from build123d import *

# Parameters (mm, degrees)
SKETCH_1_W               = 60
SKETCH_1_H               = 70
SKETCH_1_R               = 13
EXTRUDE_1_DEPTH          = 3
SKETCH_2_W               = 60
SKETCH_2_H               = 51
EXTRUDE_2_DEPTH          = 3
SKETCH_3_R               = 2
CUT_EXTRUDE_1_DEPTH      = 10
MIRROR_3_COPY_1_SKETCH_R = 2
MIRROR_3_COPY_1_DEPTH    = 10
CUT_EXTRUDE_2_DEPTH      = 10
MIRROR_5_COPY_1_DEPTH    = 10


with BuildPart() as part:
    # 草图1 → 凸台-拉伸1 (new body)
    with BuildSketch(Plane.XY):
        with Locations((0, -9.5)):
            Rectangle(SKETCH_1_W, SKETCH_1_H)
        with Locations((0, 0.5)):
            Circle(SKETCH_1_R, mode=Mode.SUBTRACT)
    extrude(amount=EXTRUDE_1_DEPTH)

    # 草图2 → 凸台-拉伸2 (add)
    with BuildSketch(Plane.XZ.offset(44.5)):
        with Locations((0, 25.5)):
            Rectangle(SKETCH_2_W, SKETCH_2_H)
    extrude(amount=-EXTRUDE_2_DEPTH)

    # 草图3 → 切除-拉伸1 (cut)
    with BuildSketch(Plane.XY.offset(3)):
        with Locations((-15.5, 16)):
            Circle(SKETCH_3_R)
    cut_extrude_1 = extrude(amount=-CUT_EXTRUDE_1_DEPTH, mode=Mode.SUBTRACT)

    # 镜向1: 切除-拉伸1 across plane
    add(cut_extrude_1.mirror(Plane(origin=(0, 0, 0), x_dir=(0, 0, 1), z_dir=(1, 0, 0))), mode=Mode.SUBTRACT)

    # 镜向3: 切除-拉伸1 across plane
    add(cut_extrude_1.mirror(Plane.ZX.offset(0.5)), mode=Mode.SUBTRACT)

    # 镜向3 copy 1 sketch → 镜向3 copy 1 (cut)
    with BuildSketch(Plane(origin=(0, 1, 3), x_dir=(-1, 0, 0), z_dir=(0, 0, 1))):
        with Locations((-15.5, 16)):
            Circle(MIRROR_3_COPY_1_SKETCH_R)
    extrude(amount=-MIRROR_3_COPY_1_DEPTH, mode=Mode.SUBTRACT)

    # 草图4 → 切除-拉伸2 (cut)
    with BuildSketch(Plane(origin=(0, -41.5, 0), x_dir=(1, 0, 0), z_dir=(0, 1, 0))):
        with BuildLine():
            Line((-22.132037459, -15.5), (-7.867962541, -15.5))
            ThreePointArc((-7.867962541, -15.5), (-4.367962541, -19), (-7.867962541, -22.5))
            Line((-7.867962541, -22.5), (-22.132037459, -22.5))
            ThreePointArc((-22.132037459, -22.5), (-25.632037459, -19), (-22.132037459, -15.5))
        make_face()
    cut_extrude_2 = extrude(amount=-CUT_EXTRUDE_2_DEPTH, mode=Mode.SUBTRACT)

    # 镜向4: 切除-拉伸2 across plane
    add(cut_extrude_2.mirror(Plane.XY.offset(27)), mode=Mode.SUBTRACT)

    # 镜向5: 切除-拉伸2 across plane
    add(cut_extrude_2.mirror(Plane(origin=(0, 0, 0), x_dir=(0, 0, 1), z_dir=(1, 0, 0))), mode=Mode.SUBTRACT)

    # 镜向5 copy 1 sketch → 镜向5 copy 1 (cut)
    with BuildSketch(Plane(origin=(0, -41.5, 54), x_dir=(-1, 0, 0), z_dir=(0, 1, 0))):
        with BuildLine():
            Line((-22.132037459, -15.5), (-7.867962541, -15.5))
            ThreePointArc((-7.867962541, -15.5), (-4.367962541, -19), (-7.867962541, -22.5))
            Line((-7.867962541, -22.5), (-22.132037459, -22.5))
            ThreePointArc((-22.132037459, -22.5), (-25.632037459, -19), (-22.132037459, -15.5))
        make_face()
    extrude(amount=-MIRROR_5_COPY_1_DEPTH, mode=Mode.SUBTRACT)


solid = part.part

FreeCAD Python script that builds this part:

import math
import FreeCAD as App
import Part
import Sketcher

doc = App.newDocument("Part")
params = doc.addObject("Spreadsheet::Sheet", "Params")
for row, (alias, value) in enumerate([
    ("sketch1_diameter", "26 mm"),
    ("sketch1_width", "60 mm"),
    ("sketch1_height", "70 mm"),
    ("pad1_length", "3 mm"),
    ("sketch2_width", "60 mm"),
    ("sketch2_height", "51 mm"),
    ("pad2_length", "3 mm"),
    ("sketch3_diameter", "4 mm"),
    ("pocket1_length", "10 mm"),
    ("sketch4_diameter", "4 mm"),
    ("pocket2_length", "10 mm"),
    ("sketch5_radius", "3.5 mm"),
    ("pocket3_length", "10 mm"),
    ("sketch6_radius", "3.5 mm"),
    ("pocket4_length", "10 mm"),
], start=1):
    params.set(f"A{row}", alias)
    params.set(f"B{row}", "=" + value)
    params.setAlias(f"B{row}", alias)

body = doc.addObject("PartDesign::Body", "Body")

# Sketch on XY plane
sketch1 = body.newObject("Sketcher::SketchObject", "Sketch")
sketch1.AttachmentSupport = (doc.getObject("XY_Plane"), [""])
sketch1.MapMode = "FlatFace"
sketch1.addGeometry(Part.LineSegment(App.Vector(-30, 26, 0), App.Vector(-30, -44, 0)), False)
sketch1.addGeometry(Part.LineSegment(App.Vector(-30, -44, 0), App.Vector(30, -44, 0)), False)
sketch1.addGeometry(Part.LineSegment(App.Vector(30, -44, 0), App.Vector(30, 26, 0)), False)
sketch1.addGeometry(Part.LineSegment(App.Vector(30, 26, 0), App.Vector(-30, 26, 0)), False)
sketch1.addGeometry(Part.Circle(App.Vector(0, 0, 0), App.Vector(0, 0, 1), 13), False)
sketch1.addConstraint(Sketcher.Constraint("Coincident", 0, 2, 1, 1))
sketch1.addConstraint(Sketcher.Constraint("Coincident", 1, 2, 2, 1))
sketch1.addConstraint(Sketcher.Constraint("Coincident", 2, 2, 3, 1))
sketch1.addConstraint(Sketcher.Constraint("Coincident", 3, 2, 0, 1))
sketch1.addConstraint(Sketcher.Constraint("Vertical", 0))
sketch1.addConstraint(Sketcher.Constraint("Horizontal", 1))
sketch1.addConstraint(Sketcher.Constraint("Vertical", 2))
sketch1.addConstraint(Sketcher.Constraint("Horizontal", 3))
sketch1.addConstraint(Sketcher.Constraint("PointOnObject", 4, 3, -2))
sketch1.addConstraint(Sketcher.Constraint("Diameter", 4, 26.0))
sketch1.addConstraint(Sketcher.Constraint("DistanceX", 1, 1, 1, 2, 60.0))
sketch1.addConstraint(Sketcher.Constraint("DistanceY", 0, 2, 0, 1, 70.0))
sketch1.addConstraint(Sketcher.Constraint("DistanceX", 0, 2, -1, 1, 30.0))
sketch1.addConstraint(Sketcher.Constraint("DistanceY", 0, 2, 4, 3, 45.0))
sketch1.addConstraint(Sketcher.Constraint("DistanceY", -1, 1, 4, 3, 0.5))
sketch1.setExpression("Constraints[9]", "Params.sketch1_diameter")
sketch1.setExpression("Constraints[10]", "Params.sketch1_width")
sketch1.setExpression("Constraints[11]", "Params.sketch1_height")
pad1 = body.newObject("PartDesign::Pad", "Pad")
pad1.Profile = sketch1
pad1.setExpression("Length", "Params.pad1_length")

# Sketch on XZ plane
sketch2 = body.newObject("Sketcher::SketchObject", "Sketch001")
sketch2.AttachmentSupport = (doc.getObject("XZ_Plane"), [""])
sketch2.MapMode = "FlatFace"
sketch2.AttachmentOffset = App.Placement(App.Vector(0, 0, 44.5), App.Rotation())
sketch2.addGeometry(Part.LineSegment(App.Vector(-30, 51, 0), App.Vector(-30, 0, 0)), False)
sketch2.addGeometry(Part.LineSegment(App.Vector(-30, 0, 0), App.Vector(30, 0, 0)), False)
sketch2.addGeometry(Part.LineSegment(App.Vector(30, 0, 0), App.Vector(30, 51, 0)), False)
sketch2.addGeometry(Part.LineSegment(App.Vector(30, 51, 0), App.Vector(-30, 51, 0)), False)
sketch2.addConstraint(Sketcher.Constraint("Coincident", 0, 2, 1, 1))
sketch2.addConstraint(Sketcher.Constraint("Coincident", 1, 2, 2, 1))
sketch2.addConstraint(Sketcher.Constraint("Coincident", 2, 2, 3, 1))
sketch2.addConstraint(Sketcher.Constraint("Coincident", 3, 2, 0, 1))
sketch2.addConstraint(Sketcher.Constraint("Vertical", 0))
sketch2.addConstraint(Sketcher.Constraint("Horizontal", 1))
sketch2.addConstraint(Sketcher.Constraint("Vertical", 2))
sketch2.addConstraint(Sketcher.Constraint("Horizontal", 3))
sketch2.addConstraint(Sketcher.Constraint("Symmetric", 0, 2, 1, 2, -1, 1))
sketch2.addConstraint(Sketcher.Constraint("DistanceX", 1, 1, 1, 2, 60.0))
sketch2.addConstraint(Sketcher.Constraint("DistanceY", 0, 2, 0, 1, 51.0))
sketch2.setExpression("Constraints[9]", "Params.sketch2_width")
sketch2.setExpression("Constraints[10]", "Params.sketch2_height")
pad2 = body.newObject("PartDesign::Pad", "Pad001")
pad2.Profile = sketch2
pad2.setExpression("Length", "Params.pad2_length")
pad2.Reversed = True

# Sketch on XY plane
sketch3 = body.newObject("Sketcher::SketchObject", "Sketch002")
sketch3.AttachmentSupport = (doc.getObject("XY_Plane"), [""])
sketch3.MapMode = "FlatFace"
sketch3.AttachmentOffset = App.Placement(App.Vector(0, 0, 3), App.Rotation())
sketch3.addGeometry(Part.Circle(App.Vector(-15.5, 16, 0), App.Vector(0, 0, 1), 2), False)
sketch3.addConstraint(Sketcher.Constraint("Diameter", 0, 4.0))
sketch3.addConstraint(Sketcher.Constraint("DistanceY", -1, 1, 0, 3, 16.0))
sketch3.addConstraint(Sketcher.Constraint("DistanceX", 0, 3, -1, 1, 15.5))
sketch3.setExpression("Constraints[0]", "Params.sketch3_diameter")
pocket1 = body.newObject("PartDesign::Pocket", "Pocket")
pocket1.Profile = sketch3
pocket1.setExpression("Length", "Params.pocket1_length")
doc.recompute()

mirrored = body.newObject("PartDesign::Mirrored", "Mirrored")
mirrored.Originals = [pocket1]
mirrored.MirrorPlane = (doc.getObject("YZ_Plane"), [""])
body.Tip = mirrored
doc.recompute()

datumplane = body.newObject("PartDesign::Plane", "DatumPlane")
datumplane.AttachmentSupport = (doc.getObject("XZ_Plane"), [""])
datumplane.MapMode = "FlatFace"
datumplane.AttachmentOffset = App.Placement(App.Vector(0, 0, -0.5), App.Rotation())
mirrored2 = body.newObject("PartDesign::Mirrored", "Mirrored001")
mirrored2.Originals = [pocket1]
mirrored2.MirrorPlane = (datumplane, [""])
body.Tip = mirrored2

# Sketch on XY plane
sketch4 = body.newObject("Sketcher::SketchObject", "Sketch003")
sketch4.AttachmentSupport = (doc.getObject("XY_Plane"), [""])
sketch4.MapMode = "FlatFace"
sketch4.AttachmentOffset = App.Placement(App.Vector(0, 0, 3), App.Rotation())
sketch4.addGeometry(Part.Circle(App.Vector(15.5, -15, 0), App.Vector(0, 0, 1), 2), False)
sketch4.addConstraint(Sketcher.Constraint("Diameter", 0, 4.0))
sketch4.addConstraint(Sketcher.Constraint("DistanceY", 0, 3, -1, 1, 15.0))
sketch4.addConstraint(Sketcher.Constraint("DistanceX", -1, 1, 0, 3, 15.5))
sketch4.setExpression("Constraints[0]", "Params.sketch4_diameter")
pocket2 = body.newObject("PartDesign::Pocket", "Pocket001")
pocket2.Profile = sketch4
pocket2.setExpression("Length", "Params.pocket2_length")

# Sketch on XZ plane
sketch5 = body.newObject("Sketcher::SketchObject", "Sketch004")
sketch5.AttachmentSupport = (doc.getObject("XZ_Plane"), [""])
sketch5.MapMode = "FlatFace"
sketch5.AttachmentOffset = App.Placement(App.Vector(0, 0, 41.5), App.Rotation())
sketch5.addGeometry(Part.LineSegment(App.Vector(-7.9, 15.5, 0), App.Vector(-22.1, 15.5, 0)), False)
sketch5.addGeometry(Part.ArcOfCircle(Part.Circle(App.Vector(-22.1, 19, 0), App.Vector(0, 0, 1), 3.5), math.radians(90), math.radians(270)), False)
sketch5.addGeometry(Part.LineSegment(App.Vector(-22.1, 22.5, 0), App.Vector(-7.9, 22.5, 0)), False)
sketch5.addGeometry(Part.ArcOfCircle(Part.Circle(App.Vector(-7.9, 19, 0), App.Vector(0, 0, 1), 3.5), math.radians(-90), math.radians(90)), False)
sketch5.addConstraint(Sketcher.Constraint("Tangent", 0, 2, 1, 2))
sketch5.addConstraint(Sketcher.Constraint("Tangent", 1, 1, 2, 1))
sketch5.addConstraint(Sketcher.Constraint("Tangent", 2, 2, 3, 2))
sketch5.addConstraint(Sketcher.Constraint("Tangent", 3, 1, 0, 1))
sketch5.addConstraint(Sketcher.Constraint("Horizontal", 0))
sketch5.addConstraint(Sketcher.Constraint("Horizontal", 2))
sketch5.addConstraint(Sketcher.Constraint("Radius", 1, 3.5))
sketch5.addConstraint(Sketcher.Constraint("DistanceY", -1, 1, 1, 3, 19.0))
sketch5.addConstraint(Sketcher.Constraint("DistanceX", 0, 2, 0, 1, 14.264075))
sketch5.addConstraint(Sketcher.Constraint("DistanceX", 1, 3, -1, 1, 22.132037))
sketch5.setExpression("Constraints[6]", "Params.sketch5_radius")
pocket3 = body.newObject("PartDesign::Pocket", "Pocket002")
pocket3.Profile = sketch5
pocket3.setExpression("Length", "Params.pocket3_length")
pocket3.Reversed = True
doc.recompute()

datumplane2 = body.newObject("PartDesign::Plane", "DatumPlane001")
datumplane2.AttachmentSupport = (doc.getObject("XY_Plane"), [""])
datumplane2.MapMode = "FlatFace"
datumplane2.AttachmentOffset = App.Placement(App.Vector(0, 0, 27), App.Rotation())
mirrored3 = body.newObject("PartDesign::Mirrored", "Mirrored002")
mirrored3.Originals = [pocket3]
mirrored3.MirrorPlane = (datumplane2, [""])
body.Tip = mirrored3
doc.recompute()

mirrored4 = body.newObject("PartDesign::Mirrored", "Mirrored003")
mirrored4.Originals = [pocket3]
mirrored4.MirrorPlane = (doc.getObject("YZ_Plane"), [""])
body.Tip = mirrored4

# Sketch on XZ plane
sketch6 = body.newObject("Sketcher::SketchObject", "Sketch005")
sketch6.AttachmentSupport = (doc.getObject("XZ_Plane"), [""])
sketch6.MapMode = "FlatFace"
sketch6.AttachmentOffset = App.Placement(App.Vector(0, 0, 41.5), App.Rotation())
sketch6.addGeometry(Part.LineSegment(App.Vector(7.9, 38.5, 0), App.Vector(22.1, 38.5, 0)), False)
sketch6.addGeometry(Part.ArcOfCircle(Part.Circle(App.Vector(22.1, 35, 0), App.Vector(0, 0, 1), 3.5), math.radians(-90), math.radians(90)), False)
sketch6.addGeometry(Part.LineSegment(App.Vector(22.1, 31.5, 0), App.Vector(7.9, 31.5, 0)), False)
sketch6.addGeometry(Part.ArcOfCircle(Part.Circle(App.Vector(7.9, 35, 0), App.Vector(0, 0, 1), 3.5), math.radians(90), math.radians(270)), False)
sketch6.addConstraint(Sketcher.Constraint("Tangent", 0, 2, 1, 2))
sketch6.addConstraint(Sketcher.Constraint("Tangent", 1, 1, 2, 1))
sketch6.addConstraint(Sketcher.Constraint("Tangent", 2, 2, 3, 2))
sketch6.addConstraint(Sketcher.Constraint("Tangent", 3, 1, 0, 1))
sketch6.addConstraint(Sketcher.Constraint("Horizontal", 0))
sketch6.addConstraint(Sketcher.Constraint("Horizontal", 2))
sketch6.addConstraint(Sketcher.Constraint("Radius", 1, 3.5))
sketch6.addConstraint(Sketcher.Constraint("DistanceY", -1, 1, 1, 3, 35.0))
sketch6.addConstraint(Sketcher.Constraint("DistanceX", 0, 1, 0, 2, 14.264075))
sketch6.addConstraint(Sketcher.Constraint("DistanceX", -1, 1, 1, 3, 22.132037))
sketch6.setExpression("Constraints[6]", "Params.sketch6_radius")
pocket4 = body.newObject("PartDesign::Pocket", "Pocket003")
pocket4.Profile = sketch6
pocket4.setExpression("Length", "Params.pocket4_length")
pocket4.Reversed = True

doc.recompute()
